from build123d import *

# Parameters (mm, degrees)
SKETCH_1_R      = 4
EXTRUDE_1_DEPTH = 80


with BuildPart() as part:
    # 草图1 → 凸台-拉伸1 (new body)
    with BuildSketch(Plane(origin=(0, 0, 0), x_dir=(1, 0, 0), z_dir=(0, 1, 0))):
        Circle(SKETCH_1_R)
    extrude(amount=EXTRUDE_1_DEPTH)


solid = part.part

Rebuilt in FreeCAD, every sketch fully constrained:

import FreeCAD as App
import Part
import Sketcher

V = App.Vector
Q = App.Units.Quantity

doc = App.newDocument("Part")
body = doc.addObject("PartDesign::Body", "Body")

sketch1 = body.newObject("Sketcher::SketchObject", "Sketch")
sketch1.AttachmentSupport = (doc.getObject("XZ_Plane"), [""])
sketch1.MapMode = "FlatFace"
sketch1.addGeometry(Part.Circle(V(0, 0, 0), V(0, 0, 1), 4), False)
sketch1.addConstraint(Sketcher.Constraint("Coincident", 0, 3, -1, 1))
sketch1.addConstraint(Sketcher.Constraint("Diameter", 0, Q("8 mm")))
pad1 = body.newObject("PartDesign::Pad", "Pad")
pad1.Profile = sketch1
pad1.Length = 80
pad1.Reversed = True

doc.recompute()
